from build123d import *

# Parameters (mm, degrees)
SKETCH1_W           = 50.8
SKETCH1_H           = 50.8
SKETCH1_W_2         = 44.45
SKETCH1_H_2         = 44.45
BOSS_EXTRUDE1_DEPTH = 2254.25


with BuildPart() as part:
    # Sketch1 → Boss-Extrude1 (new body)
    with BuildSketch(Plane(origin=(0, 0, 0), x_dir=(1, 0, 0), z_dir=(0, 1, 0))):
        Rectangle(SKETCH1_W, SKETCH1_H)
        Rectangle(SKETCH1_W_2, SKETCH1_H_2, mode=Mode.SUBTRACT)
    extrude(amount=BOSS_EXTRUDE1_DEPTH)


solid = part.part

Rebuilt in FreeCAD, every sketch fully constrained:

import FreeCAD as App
import Part
import Sketcher
from FreeCAD import Vector
Q = App.Units.Quantity

doc = App.newDocument("Part")
body = doc.addObject("PartDesign::Body", "Body")

# Sketch on XZ plane
sketch1 = body.newObject("Sketcher::SketchObject", "Sketch")
sketch1.AttachmentSupport = (doc.getObject("XZ_Plane"), [""])
sketch1.MapMode = "FlatFace"
sketch1.addGeometry(Part.LineSegment(Vector(-25, -25, 0), Vector(-25, 25, 0)), False)
sketch1.addGeometry(Part.LineSegment(Vector(-25, 25, 0), Vector(25, 25, 0)), False)
sketch1.addGeometry(Part.LineSegment(Vector(25, 25, 0), Vector(25, -25, 0)), False)
sketch1.addGeometry(Part.LineSegment(Vector(25, -25, 0), Vector(-25, -25, 0)), False)
sketch1.addGeometry(Part.LineSegment(Vector(22, 22, 0), Vector(-22, 22, 0)), False)
sketch1.addGeometry(Part.LineSegment(Vector(-22, 22, 0), Vector(-22, -22, 0)), False)
sketch1.addGeometry(Part.LineSegment(Vector(-22, -22, 0), Vector(22, -22, 0)), False)
sketch1.addGeometry(Part.LineSegment(Vector(22, -22, 0), Vector(22, 22, 0)), False)
sketch1.addConstraint(Sketcher.Constraint("Coincident", 0, 2, 1, 1))
sketch1.addConstraint(Sketcher.Constraint("Coincident", 1, 2, 2, 1))
sketch1.addConstraint(Sketcher.Constraint("Coincident", 2, 2, 3, 1))
sketch1.addConstraint(Sketcher.Constraint("Coincident", 3, 2, 0, 1))
sketch1.addConstraint(Sketcher.Constraint("Coincident", 4, 2, 5, 1))
sketch1.addConstraint(Sketcher.Constraint("Coincident", 5, 2, 6, 1))
sketch1.addConstraint(Sketcher.Constraint("Coincident", 6, 2, 7, 1))
sketch1.addConstraint(Sketcher.Constraint("Coincident", 7, 2, 4, 1))
sketch1.addConstraint(Sketcher.Constraint("Vertical", 0))
sketch1.addConstraint(Sketcher.Constraint("Horizontal", 1))
sketch1.addConstraint(Sketcher.Constraint("Vertical", 2))
sketch1.addConstraint(Sketcher.Constraint("Horizontal", 3))
sketch1.addConstraint(Sketcher.Constraint("Horizontal", 4))
sketch1.addConstraint(Sketcher.Constraint("Vertical", 5))
sketch1.addConstraint(Sketcher.Constraint("Horizontal", 6))
sketch1.addConstraint(Sketcher.Constraint("Vertical", 7))
sketch1.addConstraint(Sketcher.Constraint("Symmetric", 0, 2, 2, 2, -1, 1))
sketch1.addConstraint(Sketcher.Constraint("Symmetric", 4, 2, 6, 2, -1, 1))
sketch1.addConstraint(Sketcher.Constraint("Equal", 3, 0))
sketch1.addConstraint(Sketcher.Constraint("Equal", 6, 5))
sketch1.addConstraint(Sketcher.Constraint("DistanceX", 1, 1, 1, 2, Q("2 in")))
sketch1.addConstraint(Sketcher.Constraint("DistanceX", 4, 2, 4, 1, Q("1.75 in")))
pad1 = body.newObject("PartDesign::Pad", "Pad")
pad1.Profile = sketch1
pad1.Length = Q("88.75 in")
pad1.Reversed = True

doc.recompute()
